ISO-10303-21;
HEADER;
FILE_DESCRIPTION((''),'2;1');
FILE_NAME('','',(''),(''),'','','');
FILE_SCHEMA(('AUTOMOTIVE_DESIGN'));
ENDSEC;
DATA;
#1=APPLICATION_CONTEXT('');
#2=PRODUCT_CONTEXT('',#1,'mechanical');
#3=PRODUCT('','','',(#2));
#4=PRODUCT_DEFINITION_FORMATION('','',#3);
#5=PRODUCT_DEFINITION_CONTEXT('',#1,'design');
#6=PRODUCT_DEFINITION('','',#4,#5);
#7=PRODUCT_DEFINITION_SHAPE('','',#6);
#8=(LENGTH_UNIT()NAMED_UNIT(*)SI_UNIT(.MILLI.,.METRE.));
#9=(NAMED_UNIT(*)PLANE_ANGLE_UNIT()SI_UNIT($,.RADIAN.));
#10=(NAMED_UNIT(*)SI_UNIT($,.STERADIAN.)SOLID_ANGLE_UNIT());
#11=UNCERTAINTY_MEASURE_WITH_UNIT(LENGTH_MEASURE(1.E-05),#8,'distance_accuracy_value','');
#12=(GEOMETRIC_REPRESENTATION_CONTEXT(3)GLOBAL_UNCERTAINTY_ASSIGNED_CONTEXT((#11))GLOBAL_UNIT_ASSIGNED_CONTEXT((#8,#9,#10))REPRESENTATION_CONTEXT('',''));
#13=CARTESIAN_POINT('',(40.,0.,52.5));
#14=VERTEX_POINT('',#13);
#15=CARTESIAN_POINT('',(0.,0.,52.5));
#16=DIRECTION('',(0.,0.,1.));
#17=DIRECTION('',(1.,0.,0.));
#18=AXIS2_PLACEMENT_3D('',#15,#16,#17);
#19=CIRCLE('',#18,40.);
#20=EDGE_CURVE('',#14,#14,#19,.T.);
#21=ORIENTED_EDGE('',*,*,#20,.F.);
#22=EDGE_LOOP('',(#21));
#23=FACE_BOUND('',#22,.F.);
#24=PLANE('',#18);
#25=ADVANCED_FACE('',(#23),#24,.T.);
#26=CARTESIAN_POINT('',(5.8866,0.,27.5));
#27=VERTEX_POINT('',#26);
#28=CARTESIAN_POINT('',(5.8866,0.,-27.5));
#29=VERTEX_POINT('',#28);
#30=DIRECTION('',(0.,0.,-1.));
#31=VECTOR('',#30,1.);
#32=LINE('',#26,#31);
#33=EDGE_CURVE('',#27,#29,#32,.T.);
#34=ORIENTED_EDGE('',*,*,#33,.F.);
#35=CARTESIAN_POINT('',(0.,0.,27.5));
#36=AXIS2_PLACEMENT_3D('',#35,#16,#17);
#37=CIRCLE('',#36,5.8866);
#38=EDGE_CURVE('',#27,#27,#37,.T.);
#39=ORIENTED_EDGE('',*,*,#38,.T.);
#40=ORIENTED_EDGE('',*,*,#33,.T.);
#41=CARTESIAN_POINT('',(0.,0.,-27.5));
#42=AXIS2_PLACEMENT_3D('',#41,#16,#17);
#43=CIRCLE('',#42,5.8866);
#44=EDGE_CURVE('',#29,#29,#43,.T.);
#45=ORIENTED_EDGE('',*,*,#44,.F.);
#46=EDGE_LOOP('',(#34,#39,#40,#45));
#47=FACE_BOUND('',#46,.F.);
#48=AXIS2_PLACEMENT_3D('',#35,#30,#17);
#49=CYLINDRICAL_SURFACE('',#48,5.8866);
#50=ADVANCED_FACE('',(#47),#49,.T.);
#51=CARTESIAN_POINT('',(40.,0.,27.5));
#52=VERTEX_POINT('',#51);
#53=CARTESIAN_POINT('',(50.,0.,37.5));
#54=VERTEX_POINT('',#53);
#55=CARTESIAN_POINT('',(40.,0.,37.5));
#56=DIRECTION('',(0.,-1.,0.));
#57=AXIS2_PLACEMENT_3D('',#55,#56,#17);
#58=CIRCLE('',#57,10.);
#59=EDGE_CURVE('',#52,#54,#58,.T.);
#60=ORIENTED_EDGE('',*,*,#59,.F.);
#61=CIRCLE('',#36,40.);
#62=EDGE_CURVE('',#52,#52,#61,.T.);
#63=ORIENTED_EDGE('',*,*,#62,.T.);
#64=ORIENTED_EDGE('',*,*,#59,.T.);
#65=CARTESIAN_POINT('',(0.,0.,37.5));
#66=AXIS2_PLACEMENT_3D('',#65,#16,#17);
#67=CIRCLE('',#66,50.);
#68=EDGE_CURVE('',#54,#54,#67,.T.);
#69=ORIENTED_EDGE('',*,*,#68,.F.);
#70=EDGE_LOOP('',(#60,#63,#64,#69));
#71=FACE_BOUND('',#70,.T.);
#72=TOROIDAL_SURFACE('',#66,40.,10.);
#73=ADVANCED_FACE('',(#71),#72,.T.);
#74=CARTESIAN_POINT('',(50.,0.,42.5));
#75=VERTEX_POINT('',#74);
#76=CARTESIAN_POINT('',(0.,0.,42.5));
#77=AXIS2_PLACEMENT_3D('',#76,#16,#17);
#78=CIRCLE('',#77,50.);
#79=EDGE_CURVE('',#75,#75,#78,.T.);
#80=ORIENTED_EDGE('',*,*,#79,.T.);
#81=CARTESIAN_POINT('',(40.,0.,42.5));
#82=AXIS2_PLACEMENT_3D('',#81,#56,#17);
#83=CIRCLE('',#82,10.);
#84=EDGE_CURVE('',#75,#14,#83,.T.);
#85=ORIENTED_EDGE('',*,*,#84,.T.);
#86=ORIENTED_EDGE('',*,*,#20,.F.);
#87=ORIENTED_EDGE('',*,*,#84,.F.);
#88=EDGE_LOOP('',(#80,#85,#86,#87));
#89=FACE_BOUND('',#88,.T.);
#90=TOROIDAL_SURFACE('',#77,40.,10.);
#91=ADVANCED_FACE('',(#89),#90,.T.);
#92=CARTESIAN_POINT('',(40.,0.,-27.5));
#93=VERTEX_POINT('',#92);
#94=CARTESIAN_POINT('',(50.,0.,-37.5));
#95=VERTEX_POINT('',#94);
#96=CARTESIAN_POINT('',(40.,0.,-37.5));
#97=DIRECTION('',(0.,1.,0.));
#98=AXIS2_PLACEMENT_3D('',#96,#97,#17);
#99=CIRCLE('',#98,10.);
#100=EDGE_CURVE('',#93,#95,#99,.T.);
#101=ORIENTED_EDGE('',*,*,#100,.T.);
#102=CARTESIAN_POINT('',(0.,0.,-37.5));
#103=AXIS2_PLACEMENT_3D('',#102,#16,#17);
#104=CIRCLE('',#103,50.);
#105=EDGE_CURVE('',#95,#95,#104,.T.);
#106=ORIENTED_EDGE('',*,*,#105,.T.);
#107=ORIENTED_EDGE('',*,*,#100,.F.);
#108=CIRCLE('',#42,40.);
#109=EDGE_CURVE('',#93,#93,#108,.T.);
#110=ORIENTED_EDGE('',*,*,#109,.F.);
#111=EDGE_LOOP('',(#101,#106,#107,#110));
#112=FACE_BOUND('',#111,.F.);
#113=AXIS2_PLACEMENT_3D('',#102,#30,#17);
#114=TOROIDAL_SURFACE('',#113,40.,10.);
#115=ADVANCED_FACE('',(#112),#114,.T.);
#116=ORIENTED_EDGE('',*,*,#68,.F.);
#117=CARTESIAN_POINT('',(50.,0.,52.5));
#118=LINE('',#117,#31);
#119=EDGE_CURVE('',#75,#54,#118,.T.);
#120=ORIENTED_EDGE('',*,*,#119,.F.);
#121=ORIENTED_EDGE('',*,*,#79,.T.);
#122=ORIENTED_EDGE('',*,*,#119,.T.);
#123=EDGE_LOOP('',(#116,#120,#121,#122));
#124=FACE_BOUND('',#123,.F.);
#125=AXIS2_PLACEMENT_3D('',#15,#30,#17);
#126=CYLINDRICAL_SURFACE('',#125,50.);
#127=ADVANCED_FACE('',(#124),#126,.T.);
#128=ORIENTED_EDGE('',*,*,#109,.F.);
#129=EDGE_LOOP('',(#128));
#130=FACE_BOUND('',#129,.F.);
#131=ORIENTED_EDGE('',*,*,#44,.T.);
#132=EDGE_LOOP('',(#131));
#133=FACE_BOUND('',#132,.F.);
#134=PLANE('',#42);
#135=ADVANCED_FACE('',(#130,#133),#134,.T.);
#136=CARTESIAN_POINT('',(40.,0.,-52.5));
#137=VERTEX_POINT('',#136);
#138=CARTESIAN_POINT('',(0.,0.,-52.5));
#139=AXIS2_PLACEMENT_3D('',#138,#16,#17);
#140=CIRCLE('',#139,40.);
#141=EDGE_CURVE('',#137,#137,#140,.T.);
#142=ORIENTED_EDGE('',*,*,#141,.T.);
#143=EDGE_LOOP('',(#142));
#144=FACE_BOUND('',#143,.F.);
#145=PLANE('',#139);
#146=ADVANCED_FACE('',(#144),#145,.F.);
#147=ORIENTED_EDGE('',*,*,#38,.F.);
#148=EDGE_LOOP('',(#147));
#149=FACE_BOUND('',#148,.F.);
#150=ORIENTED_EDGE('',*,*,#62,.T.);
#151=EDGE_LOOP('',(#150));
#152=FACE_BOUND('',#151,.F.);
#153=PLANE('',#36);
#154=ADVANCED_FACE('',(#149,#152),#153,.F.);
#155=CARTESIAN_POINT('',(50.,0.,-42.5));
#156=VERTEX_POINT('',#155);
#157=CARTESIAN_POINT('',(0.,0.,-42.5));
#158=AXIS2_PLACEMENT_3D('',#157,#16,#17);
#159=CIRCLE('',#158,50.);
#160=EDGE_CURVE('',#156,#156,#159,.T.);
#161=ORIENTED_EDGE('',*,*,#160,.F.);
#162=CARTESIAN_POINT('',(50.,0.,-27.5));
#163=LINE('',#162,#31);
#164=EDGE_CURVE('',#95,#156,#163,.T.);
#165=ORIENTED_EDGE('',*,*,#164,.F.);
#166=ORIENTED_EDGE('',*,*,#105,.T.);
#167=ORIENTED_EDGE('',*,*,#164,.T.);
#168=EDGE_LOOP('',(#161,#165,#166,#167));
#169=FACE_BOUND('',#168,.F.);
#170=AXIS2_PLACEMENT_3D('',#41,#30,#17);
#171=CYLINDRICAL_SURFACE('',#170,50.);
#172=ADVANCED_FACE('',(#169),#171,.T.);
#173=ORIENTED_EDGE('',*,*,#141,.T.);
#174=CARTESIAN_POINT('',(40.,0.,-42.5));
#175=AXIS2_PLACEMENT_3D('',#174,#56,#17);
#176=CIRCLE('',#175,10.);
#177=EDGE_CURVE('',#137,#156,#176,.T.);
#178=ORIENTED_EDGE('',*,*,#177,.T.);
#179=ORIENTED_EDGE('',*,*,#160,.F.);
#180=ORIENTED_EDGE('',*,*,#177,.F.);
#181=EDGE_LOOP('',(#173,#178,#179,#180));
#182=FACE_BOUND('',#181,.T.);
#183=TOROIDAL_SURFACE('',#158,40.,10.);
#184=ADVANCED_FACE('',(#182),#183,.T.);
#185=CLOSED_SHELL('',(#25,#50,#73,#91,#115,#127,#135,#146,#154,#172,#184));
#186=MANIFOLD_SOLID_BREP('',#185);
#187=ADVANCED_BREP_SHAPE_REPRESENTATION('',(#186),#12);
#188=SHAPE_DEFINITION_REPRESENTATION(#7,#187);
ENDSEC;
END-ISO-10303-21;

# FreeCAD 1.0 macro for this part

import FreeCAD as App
import Part
import Sketcher
from FreeCAD import Vector


def edges_at(feature, points):
    """Names of the edges that pass closest to the given points."""
    edges = feature.Shape.Edges
    near = lambda p: min(range(len(edges)), key=lambda i: edges[i].distToShape(Part.Vertex(*p))[0])
    return sorted({f"Edge{near(p) + 1}" for p in points})


def add_polygon(sketch, points):
    """Adds a closed chain of lines whose ends are joined by coincident constraints."""
    first, n = sketch.GeometryCount, len(points)
    for a, b in zip(points, points[1:] + points[:1]):
        sketch.addGeometry(Part.LineSegment(App.Vector(*a, 0), App.Vector(*b, 0)), False)
    for i in range(n):
        sketch.addConstraint(Sketcher.Constraint("Coincident", first + i, 2, first + (i + 1) % n, 1))

doc = App.newDocument("Part")
body = doc.addObject("PartDesign::Body", "Body")

# Sketch on XZ plane
sketch1 = body.newObject("Sketcher::SketchObject", "Sketch")
sketch1.AttachmentSupport = (doc.getObject("XZ_Plane"), [""])
sketch1.MapMode = "FlatFace"
add_polygon(sketch1, [(5.8866, -27.5), (50, -27.5), (50, -52.5), (0, -52.5), (0, 52.5), (50, 52.5), (50, 27.5), (5.8866, 27.5)])  # lines 0-7
sketch1.addConstraint([
    Sketcher.Constraint("Horizontal", 0),
    Sketcher.Constraint("Vertical", 1),
    Sketcher.Constraint("Horizontal", 2),
    Sketcher.Constraint("Vertical", 3),
    Sketcher.Constraint("Horizontal", 4),
    Sketcher.Constraint("Vertical", 5),
    Sketcher.Constraint("Horizontal", 6),
    Sketcher.Constraint("Vertical", 7),
    Sketcher.Constraint("Symmetric", 2, 2, 3, 2, -1, 1),
    Sketcher.Constraint("Symmetric", 0, 2, 5, 2, -1),
    Sketcher.Constraint("DistanceX", 2, 2, 2, 1, 50.0),
    Sketcher.Constraint("DistanceY", 1, 2, 1, 1, 25.0),
    Sketcher.Constraint("DistanceY", 3, 1, 3, 2, 105.0),
    Sketcher.Constraint("DistanceX", 0, 1, 0, 2, 44.1134),
])
revolution = body.newObject("PartDesign::Revolution", "Revolution")
revolution.Profile = sketch1
revolution.ReferenceAxis = (sketch1, ["V_Axis"])
revolution.Angle = 360
doc.recompute()

fillet = body.newObject("PartDesign::Fillet", "Fillet")
fillet.Base = (revolution, edges_at(revolution, [
    (-50, 0, 27.5),
    (-50, 0, -27.5),
    (-50, 0, -52.5),
    (-50, 0, 52.5),
]))
fillet.Radius = 10

doc.recompute()
